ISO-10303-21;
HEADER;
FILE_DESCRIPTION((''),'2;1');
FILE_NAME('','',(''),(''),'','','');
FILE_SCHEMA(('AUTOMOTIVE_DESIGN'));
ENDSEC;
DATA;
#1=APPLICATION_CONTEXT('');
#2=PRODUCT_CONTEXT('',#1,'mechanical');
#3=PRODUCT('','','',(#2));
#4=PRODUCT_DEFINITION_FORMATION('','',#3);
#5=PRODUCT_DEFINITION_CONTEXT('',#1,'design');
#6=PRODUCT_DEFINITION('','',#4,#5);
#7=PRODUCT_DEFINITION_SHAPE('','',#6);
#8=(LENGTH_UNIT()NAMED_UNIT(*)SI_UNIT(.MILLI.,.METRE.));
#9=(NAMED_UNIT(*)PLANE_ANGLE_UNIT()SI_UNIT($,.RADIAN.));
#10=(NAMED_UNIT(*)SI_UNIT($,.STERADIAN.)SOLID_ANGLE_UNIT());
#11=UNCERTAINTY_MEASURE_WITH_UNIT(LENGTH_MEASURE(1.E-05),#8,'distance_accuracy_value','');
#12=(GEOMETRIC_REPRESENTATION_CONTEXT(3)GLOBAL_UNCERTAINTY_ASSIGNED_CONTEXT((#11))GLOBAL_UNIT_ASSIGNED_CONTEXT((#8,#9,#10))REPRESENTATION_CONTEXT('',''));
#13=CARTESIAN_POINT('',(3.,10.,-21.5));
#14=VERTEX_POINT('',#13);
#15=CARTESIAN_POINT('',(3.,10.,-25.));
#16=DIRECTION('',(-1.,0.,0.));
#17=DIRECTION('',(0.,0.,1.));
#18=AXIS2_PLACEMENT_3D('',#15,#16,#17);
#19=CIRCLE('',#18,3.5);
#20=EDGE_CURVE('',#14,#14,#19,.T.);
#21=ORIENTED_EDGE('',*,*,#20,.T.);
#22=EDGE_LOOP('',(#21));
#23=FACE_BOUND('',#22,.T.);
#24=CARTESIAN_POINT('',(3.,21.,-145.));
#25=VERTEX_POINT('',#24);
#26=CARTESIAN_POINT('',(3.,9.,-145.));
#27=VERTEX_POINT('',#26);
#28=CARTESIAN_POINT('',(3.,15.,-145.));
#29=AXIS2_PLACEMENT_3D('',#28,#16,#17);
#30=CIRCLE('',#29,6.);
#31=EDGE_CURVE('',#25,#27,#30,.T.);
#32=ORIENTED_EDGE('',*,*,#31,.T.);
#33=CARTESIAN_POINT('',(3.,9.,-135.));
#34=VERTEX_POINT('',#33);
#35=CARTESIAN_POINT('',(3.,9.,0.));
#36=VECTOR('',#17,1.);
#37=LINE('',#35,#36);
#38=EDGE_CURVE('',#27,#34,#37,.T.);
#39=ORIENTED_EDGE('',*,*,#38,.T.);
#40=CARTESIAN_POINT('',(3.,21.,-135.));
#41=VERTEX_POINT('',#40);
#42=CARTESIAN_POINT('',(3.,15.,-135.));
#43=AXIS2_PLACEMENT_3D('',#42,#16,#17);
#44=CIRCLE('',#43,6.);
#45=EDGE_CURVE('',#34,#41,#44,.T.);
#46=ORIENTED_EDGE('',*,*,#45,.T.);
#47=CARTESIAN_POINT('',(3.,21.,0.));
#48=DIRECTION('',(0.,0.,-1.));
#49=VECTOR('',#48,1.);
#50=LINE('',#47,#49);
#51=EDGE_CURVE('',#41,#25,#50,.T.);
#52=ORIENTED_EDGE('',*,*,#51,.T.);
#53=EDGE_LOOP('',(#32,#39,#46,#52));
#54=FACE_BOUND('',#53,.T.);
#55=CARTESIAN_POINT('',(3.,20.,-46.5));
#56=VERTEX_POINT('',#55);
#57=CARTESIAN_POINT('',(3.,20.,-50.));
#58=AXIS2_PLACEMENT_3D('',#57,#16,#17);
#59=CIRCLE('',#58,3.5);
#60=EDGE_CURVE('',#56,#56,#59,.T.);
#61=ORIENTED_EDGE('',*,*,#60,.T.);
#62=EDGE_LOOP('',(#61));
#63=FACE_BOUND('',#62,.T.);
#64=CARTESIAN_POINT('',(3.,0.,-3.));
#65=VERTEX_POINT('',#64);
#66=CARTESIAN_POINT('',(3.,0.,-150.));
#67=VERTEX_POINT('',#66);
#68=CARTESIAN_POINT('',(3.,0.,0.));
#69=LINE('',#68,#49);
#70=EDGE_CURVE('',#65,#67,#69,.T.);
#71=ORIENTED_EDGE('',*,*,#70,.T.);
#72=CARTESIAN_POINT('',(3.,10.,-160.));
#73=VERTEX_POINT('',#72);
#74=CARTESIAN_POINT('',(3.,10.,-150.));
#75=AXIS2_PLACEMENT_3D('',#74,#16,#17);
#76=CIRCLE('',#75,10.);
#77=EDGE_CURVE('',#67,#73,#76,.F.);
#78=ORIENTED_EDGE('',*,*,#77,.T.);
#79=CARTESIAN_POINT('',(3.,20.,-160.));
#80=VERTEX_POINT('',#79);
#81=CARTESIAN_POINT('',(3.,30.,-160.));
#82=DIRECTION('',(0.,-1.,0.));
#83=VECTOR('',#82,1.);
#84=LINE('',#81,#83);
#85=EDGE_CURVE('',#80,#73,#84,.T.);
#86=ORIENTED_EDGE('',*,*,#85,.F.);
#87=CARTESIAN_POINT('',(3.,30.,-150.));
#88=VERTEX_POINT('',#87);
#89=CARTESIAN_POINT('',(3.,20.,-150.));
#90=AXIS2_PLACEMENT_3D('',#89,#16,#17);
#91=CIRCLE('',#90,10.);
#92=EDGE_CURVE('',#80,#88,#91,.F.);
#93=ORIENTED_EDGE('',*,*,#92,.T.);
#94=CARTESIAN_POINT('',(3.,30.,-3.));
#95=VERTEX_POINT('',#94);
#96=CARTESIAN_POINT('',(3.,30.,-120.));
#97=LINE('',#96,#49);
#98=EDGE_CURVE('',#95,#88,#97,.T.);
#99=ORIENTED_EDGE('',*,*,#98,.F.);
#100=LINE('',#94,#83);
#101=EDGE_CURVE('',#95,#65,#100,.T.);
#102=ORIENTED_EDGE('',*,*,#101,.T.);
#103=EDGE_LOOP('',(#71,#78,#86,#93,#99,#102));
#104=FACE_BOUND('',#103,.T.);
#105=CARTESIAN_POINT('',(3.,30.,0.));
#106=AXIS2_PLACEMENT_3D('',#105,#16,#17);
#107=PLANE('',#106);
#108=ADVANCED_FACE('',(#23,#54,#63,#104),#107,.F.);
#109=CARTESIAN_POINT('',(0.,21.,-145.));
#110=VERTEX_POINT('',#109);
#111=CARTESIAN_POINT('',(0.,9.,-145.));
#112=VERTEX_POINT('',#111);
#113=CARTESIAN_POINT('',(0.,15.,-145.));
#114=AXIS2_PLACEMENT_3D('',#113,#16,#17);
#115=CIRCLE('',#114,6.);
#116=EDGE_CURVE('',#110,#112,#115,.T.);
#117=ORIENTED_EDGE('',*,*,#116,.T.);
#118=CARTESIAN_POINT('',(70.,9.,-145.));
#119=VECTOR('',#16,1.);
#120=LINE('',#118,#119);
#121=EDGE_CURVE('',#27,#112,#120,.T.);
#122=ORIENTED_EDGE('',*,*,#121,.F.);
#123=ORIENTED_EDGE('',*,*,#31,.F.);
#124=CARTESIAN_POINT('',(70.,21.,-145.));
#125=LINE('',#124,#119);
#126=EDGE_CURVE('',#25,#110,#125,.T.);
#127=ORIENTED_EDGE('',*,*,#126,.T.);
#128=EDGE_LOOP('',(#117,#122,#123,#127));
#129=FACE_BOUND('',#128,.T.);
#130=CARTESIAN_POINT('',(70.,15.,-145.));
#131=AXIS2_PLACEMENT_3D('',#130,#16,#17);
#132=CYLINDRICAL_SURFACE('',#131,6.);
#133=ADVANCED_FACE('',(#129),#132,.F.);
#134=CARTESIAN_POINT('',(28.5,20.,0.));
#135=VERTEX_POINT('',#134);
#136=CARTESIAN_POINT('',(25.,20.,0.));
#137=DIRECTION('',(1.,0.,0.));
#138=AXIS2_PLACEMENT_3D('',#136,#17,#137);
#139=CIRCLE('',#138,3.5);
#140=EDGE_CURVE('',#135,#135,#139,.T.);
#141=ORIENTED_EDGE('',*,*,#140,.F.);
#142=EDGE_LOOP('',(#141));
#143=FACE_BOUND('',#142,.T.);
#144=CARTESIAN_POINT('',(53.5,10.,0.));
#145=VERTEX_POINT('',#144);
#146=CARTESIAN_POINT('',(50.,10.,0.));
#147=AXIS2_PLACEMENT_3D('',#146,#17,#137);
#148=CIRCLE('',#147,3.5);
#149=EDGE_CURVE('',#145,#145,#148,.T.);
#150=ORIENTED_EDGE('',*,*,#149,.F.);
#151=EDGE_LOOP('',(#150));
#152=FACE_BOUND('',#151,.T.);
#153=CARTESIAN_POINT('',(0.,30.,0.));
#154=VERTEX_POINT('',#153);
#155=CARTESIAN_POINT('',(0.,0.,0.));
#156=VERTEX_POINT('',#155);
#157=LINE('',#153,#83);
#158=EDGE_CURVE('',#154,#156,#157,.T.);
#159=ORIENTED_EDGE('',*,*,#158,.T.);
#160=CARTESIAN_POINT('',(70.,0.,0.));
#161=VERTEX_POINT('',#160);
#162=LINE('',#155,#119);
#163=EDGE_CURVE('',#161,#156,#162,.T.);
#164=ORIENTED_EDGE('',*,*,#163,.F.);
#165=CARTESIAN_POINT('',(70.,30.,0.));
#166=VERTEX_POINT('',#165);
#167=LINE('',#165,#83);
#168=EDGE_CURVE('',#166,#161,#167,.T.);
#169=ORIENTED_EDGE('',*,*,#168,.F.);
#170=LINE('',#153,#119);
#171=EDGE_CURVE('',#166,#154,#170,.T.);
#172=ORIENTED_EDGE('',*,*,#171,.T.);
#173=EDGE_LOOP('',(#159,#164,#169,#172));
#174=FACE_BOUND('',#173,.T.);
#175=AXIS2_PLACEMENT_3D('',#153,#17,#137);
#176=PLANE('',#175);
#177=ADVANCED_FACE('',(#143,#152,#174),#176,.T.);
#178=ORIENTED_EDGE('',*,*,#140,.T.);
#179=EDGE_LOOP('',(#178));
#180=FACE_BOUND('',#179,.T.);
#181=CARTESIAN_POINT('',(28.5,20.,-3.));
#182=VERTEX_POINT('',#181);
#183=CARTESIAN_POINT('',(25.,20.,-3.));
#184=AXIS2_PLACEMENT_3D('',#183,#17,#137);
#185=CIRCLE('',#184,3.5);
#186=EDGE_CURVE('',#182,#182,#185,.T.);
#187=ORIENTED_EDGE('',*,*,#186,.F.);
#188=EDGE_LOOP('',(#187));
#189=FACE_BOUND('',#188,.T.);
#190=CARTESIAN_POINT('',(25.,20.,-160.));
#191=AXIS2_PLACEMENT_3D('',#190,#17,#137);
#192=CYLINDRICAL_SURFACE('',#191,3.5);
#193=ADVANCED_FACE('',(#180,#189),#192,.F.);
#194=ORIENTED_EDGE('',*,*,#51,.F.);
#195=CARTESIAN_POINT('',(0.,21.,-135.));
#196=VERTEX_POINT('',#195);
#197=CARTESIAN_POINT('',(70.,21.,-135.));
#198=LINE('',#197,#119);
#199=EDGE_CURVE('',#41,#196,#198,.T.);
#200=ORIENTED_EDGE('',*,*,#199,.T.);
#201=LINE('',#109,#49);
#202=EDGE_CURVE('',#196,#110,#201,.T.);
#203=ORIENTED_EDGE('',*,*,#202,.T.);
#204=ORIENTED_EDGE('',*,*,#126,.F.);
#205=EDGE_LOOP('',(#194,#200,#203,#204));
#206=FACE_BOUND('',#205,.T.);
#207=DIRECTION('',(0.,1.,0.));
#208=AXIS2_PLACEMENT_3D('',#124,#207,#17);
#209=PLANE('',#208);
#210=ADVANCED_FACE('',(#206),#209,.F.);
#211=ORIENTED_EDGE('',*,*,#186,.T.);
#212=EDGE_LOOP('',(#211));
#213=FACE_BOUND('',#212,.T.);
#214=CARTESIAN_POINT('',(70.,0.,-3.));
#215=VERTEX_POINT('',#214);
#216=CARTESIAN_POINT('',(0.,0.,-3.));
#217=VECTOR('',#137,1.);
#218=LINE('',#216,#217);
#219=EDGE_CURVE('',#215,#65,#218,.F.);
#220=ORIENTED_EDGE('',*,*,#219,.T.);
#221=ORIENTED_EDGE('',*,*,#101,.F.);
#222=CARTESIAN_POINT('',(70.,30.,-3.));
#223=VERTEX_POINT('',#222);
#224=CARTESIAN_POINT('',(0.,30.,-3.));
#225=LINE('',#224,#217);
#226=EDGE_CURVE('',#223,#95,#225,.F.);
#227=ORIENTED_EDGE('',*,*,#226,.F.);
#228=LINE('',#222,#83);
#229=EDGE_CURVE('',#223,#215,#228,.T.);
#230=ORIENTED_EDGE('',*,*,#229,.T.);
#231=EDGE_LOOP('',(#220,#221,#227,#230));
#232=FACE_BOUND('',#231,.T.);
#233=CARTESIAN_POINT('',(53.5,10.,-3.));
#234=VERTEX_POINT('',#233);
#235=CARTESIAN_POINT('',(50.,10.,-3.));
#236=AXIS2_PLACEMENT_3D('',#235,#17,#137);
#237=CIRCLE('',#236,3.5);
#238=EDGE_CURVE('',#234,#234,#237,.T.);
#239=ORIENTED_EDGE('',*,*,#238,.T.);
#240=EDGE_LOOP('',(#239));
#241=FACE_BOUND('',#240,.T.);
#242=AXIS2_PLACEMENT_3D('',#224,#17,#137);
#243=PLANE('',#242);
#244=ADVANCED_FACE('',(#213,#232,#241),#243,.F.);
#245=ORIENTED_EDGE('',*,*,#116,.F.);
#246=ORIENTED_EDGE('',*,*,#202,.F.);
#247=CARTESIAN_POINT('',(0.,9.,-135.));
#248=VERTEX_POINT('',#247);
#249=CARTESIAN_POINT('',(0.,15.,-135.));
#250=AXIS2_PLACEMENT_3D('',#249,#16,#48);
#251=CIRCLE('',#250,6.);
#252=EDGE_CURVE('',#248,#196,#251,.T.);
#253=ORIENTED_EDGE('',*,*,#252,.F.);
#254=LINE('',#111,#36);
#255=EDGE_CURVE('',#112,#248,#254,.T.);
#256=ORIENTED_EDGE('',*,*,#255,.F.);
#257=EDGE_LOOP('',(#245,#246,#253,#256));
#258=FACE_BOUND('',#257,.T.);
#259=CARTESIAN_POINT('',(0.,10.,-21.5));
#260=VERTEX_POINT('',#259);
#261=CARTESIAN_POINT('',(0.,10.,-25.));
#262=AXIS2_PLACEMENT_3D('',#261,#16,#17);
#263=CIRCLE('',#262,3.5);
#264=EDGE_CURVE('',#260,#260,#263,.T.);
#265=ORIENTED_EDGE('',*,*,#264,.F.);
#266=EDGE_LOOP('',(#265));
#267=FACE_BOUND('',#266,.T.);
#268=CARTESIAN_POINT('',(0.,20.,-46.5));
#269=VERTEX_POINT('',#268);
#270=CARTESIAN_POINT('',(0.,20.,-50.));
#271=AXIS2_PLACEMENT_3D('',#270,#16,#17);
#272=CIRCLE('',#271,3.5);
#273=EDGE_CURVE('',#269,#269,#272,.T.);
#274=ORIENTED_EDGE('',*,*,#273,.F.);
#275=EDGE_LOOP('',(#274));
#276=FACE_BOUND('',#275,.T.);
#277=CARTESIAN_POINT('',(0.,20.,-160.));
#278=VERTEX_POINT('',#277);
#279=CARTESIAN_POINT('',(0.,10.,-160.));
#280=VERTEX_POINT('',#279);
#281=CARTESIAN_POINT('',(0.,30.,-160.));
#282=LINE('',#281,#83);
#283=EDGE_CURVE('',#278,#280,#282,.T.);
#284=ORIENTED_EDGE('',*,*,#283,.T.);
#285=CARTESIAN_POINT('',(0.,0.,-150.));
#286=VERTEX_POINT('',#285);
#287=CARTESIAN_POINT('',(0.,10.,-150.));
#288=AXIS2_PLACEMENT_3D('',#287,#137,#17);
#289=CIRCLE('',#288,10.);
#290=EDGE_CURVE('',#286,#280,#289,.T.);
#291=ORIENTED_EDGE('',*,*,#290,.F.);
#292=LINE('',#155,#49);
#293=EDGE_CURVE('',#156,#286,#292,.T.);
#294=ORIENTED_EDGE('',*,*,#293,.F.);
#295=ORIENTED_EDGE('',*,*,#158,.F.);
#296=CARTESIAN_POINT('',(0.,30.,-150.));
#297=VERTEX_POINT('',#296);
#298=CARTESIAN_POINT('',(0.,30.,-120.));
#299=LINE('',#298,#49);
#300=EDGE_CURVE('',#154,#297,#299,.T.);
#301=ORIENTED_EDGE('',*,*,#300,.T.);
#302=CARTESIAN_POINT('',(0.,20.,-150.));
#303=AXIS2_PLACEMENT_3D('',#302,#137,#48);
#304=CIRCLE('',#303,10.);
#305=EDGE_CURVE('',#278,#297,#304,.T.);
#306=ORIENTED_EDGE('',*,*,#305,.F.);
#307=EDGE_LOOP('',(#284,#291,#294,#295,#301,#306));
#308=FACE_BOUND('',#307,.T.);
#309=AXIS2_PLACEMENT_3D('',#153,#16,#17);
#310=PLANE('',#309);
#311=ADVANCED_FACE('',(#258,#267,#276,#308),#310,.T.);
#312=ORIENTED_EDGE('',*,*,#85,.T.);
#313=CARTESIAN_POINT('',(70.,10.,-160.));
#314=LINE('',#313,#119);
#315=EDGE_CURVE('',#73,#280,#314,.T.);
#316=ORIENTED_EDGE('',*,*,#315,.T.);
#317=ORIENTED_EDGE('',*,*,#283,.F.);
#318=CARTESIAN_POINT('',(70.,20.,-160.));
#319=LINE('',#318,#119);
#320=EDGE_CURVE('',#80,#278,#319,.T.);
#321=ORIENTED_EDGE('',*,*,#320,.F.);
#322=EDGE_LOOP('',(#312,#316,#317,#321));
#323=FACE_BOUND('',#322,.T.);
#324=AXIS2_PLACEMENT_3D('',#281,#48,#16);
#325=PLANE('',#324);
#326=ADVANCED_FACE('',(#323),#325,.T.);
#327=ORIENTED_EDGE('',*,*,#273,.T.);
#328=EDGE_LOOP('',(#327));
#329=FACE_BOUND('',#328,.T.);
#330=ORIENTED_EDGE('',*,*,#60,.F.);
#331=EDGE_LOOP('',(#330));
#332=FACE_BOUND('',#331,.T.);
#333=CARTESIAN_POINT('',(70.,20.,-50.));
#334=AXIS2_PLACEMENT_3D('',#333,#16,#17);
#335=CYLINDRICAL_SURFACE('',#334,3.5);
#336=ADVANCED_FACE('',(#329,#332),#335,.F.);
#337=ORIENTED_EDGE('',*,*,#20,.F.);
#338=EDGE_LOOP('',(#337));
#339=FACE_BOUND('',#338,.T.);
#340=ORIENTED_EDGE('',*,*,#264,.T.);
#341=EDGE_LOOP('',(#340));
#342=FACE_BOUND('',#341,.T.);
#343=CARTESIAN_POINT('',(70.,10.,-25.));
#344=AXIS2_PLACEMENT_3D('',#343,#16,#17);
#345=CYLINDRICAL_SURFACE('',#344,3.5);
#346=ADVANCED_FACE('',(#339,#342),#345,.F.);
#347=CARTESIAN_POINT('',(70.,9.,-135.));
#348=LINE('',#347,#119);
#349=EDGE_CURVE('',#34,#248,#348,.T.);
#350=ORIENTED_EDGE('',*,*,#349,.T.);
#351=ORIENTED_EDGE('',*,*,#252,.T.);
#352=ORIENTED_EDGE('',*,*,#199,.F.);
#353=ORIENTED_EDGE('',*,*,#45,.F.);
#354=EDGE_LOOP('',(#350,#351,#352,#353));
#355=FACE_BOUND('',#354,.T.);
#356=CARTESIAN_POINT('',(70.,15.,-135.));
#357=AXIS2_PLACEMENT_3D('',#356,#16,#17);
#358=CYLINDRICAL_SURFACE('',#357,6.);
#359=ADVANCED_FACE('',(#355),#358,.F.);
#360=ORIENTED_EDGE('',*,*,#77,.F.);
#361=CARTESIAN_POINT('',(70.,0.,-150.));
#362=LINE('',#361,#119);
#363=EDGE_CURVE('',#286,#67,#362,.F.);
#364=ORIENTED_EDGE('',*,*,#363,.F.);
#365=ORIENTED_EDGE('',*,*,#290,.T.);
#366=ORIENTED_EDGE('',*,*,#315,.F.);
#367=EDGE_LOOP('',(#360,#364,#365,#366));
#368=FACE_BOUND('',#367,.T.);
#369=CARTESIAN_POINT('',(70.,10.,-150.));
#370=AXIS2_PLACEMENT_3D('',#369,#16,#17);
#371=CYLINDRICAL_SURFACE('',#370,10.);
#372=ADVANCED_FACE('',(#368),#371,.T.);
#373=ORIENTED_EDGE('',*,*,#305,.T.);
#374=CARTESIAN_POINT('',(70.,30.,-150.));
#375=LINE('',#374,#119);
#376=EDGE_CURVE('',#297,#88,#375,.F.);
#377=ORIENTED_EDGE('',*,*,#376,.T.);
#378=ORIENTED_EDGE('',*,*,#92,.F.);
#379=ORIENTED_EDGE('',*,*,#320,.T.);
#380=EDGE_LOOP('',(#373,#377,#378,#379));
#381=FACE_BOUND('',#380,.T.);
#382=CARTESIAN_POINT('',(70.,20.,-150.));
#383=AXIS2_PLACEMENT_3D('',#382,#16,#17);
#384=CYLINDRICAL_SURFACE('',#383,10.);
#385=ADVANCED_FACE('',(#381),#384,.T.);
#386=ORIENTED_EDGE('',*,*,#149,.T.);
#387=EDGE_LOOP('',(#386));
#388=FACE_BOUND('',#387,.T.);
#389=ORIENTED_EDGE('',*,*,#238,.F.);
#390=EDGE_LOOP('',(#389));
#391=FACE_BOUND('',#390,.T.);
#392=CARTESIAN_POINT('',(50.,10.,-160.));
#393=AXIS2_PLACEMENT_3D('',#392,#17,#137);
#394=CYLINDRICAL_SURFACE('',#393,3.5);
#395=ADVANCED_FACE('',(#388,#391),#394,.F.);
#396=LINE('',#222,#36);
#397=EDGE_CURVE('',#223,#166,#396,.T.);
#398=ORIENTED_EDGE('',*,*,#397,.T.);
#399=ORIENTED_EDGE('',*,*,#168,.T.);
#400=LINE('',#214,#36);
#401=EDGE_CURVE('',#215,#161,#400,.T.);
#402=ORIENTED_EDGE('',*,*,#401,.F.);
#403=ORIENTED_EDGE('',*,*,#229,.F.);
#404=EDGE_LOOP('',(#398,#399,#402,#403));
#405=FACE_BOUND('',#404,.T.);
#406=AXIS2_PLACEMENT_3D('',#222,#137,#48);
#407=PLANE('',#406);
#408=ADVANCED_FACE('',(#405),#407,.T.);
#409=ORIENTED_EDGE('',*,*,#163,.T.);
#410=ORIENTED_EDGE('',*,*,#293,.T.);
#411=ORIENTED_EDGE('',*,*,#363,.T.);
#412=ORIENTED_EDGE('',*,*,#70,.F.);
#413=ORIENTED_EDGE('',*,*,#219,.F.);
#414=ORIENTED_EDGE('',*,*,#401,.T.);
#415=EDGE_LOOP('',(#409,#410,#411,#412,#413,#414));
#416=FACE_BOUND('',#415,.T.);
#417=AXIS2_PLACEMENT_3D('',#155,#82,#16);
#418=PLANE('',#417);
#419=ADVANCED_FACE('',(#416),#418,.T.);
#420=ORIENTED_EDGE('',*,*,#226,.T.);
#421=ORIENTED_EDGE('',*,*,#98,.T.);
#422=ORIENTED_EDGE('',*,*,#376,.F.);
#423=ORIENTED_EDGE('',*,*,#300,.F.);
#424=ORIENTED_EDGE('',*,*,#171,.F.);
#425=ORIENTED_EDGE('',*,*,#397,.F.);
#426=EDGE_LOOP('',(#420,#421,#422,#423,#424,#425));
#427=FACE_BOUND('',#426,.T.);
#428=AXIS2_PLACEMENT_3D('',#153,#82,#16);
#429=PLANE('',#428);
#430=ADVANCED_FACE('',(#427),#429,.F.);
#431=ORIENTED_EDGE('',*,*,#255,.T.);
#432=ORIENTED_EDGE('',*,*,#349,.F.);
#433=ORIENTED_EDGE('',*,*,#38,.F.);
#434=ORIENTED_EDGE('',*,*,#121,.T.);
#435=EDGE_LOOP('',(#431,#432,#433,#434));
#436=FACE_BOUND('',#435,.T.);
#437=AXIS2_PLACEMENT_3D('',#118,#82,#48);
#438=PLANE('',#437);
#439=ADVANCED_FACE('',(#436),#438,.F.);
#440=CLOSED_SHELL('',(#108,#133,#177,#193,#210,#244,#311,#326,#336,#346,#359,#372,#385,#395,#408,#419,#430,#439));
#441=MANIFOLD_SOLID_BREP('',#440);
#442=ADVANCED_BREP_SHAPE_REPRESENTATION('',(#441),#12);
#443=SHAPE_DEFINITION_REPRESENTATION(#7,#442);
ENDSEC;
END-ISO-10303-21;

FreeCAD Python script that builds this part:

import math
import FreeCAD as App
import Part
import Sketcher

V = App.Vector

doc = App.newDocument("Part")
body = doc.addObject("PartDesign::Body", "Body")

# Sketch on XZ plane
sketch1 = doc.addObject("Sketcher::SketchObject", "Sketch")
body.addObject(sketch1)
sketch1.AttachmentSupport = (doc.XZ_Plane, [""])
sketch1.MapMode = "FlatFace"
sketch1.addGeometry([
    Part.LineSegment(V(0, -160, 0), V(0, 0, 0)),  # 0
    Part.LineSegment(V(0, 0, 0), V(70, 0, 0)),  # 1
    Part.LineSegment(V(70, 0, 0), V(70, -3, 0)),  # 2
    Part.LineSegment(V(70, -3, 0), V(3, -3, 0)),  # 3
    Part.LineSegment(V(3, -3, 0), V(3, -160, 0)),  # 4
    Part.LineSegment(V(3, -160, 0), V(0, -160, 0)),  # 5
], False)
sketch1.addConstraint([
    Sketcher.Constraint("Coincident", 0, 2, 1, 1),
    Sketcher.Constraint("Coincident", 1, 2, 2, 1),
    Sketcher.Constraint("Coincident", 2, 2, 3, 1),
    Sketcher.Constraint("Coincident", 3, 2, 4, 1),
    Sketcher.Constraint("Coincident", 4, 2, 5, 1),
    Sketcher.Constraint("Coincident", 5, 2, 0, 1),
    Sketcher.Constraint("Vertical", 0),
    Sketcher.Constraint("Horizontal", 1),
    Sketcher.Constraint("Vertical", 2),
    Sketcher.Constraint("Horizontal", 3),
    Sketcher.Constraint("Vertical", 4),
    Sketcher.Constraint("Horizontal", 5),
    Sketcher.Constraint("Coincident", 0, 2, -1, 1),
    Sketcher.Constraint("Equal", 5, 2),
    Sketcher.Constraint("DistanceX", 1, 1, 1, 2, 70.0),
    Sketcher.Constraint("DistanceX", 3, 2, 3, 1, 67.0),
    Sketcher.Constraint("DistanceY", 0, 1, 0, 2, 160.0),
])
pad1 = doc.addObject("PartDesign::Pad", "Pad")
body.addObject(pad1)
pad1.Profile = sketch1
pad1.Length = 30
pad1.Reversed = True

# Sketch on YZ plane
sketch2 = doc.addObject("Sketcher::SketchObject", "Sketch001")
body.addObject(sketch2)
sketch2.AttachmentSupport = (doc.YZ_Plane, [""])
sketch2.MapMode = "FlatFace"
sketch2.addGeometry([
    Part.Circle(V(20, -50, 0), V(0, 0, 1), 3.5),
    Part.Circle(V(10, -25, 0), V(0, 0, 1), 3.5),
], False)
sketch2.addConstraint([
    Sketcher.Constraint("Equal", 0, 1),
    Sketcher.Constraint("Diameter", 0, 7.0),
    Sketcher.Constraint("DistanceX", -1, 1, 0, 3, 20.0),
    Sketcher.Constraint("DistanceY", 0, 3, -1, 1, 50.0),
    Sketcher.Constraint("DistanceX", -1, 1, 1, 3, 10.0),
    Sketcher.Constraint("DistanceY", 1, 3, -1, 1, 25.0),
])
pocket1 = doc.addObject("PartDesign::Pocket", "Pocket")
body.addObject(pocket1)
pocket1.Profile = sketch2
pocket1.Type = "ThroughAll"
pocket1.Reversed = True

# Sketch on XY plane
sketch3 = doc.addObject("Sketcher::SketchObject", "Sketch002")
body.addObject(sketch3)
sketch3.AttachmentSupport = (doc.XY_Plane, [""])
sketch3.MapMode = "FlatFace"
sketch3.addGeometry([
    Part.Circle(V(25, 20, 0), V(0, 0, 1), 3.5),
    Part.Circle(V(50, 10, 0), V(0, 0, 1), 3.5),
], False)
sketch3.addConstraint([
    Sketcher.Constraint("Equal", 0, 1),
    Sketcher.Constraint("Diameter", 0, 7.0),
    Sketcher.Constraint("DistanceX", -1, 1, 0, 3, 25.0),
    Sketcher.Constraint("DistanceY", -1, 1, 0, 3, 20.0),
    Sketcher.Constraint("DistanceX", -1, 1, 1, 3, 50.0),
    Sketcher.Constraint("DistanceY", -1, 1, 1, 3, 10.0),
])
pocket2 = doc.addObject("PartDesign::Pocket", "Pocket001")
body.addObject(pocket2)
pocket2.Profile = sketch3
pocket2.Type = "ThroughAll"

# Sketch on YZ plane
sketch4 = doc.addObject("Sketcher::SketchObject", "Sketch003")
body.addObject(sketch4)
sketch4.AttachmentSupport = (doc.YZ_Plane, [""])
sketch4.MapMode = "FlatFace"
sketch4.addGeometry([
    Part.LineSegment(V(21, -135, 0), V(21, -145, 0)),  # 0
    Part.ArcOfCircle(Part.Circle(V(15, -145, 0), V(0, 0, 1), 6), math.radians(180), math.radians(360)),  # 1
    Part.LineSegment(V(9, -145, 0), V(9, -135, 0)),  # 2
    Part.ArcOfCircle(Part.Circle(V(15, -135, 0), V(0, 0, 1), 6), math.radians(0), math.radians(180)),  # 3
    Part.LineSegment(V(30, -160, 0), V(20, -160, 0)),  # 4
    Part.ArcOfCircle(Part.Circle(V(20, -150, 0), V(0, 0, 1), 10), math.radians(-90), math.radians(0)),  # 5
    Part.LineSegment(V(30, -150, 0), V(30, -160, 0)),  # 6
    Part.LineSegment(V(10, -160, 0), V(0, -160, 0)),  # 7
    Part.LineSegment(V(0, -160, 0), V(0, -150, 0)),  # 8
    Part.ArcOfCircle(Part.Circle(V(10, -150, 0), V(0, 0, 1), 10), math.radians(180), math.radians(270)),  # 9
], False)
sketch4.addConstraint([
    Sketcher.Constraint("Tangent", 0, 2, 1, 2),
    Sketcher.Constraint("Tangent", 1, 1, 2, 1),
    Sketcher.Constraint("Tangent", 2, 2, 3, 2),
    Sketcher.Constraint("Tangent", 3, 1, 0, 1),
    Sketcher.Constraint("Tangent", 4, 2, 5, 1),
    Sketcher.Constraint("Tangent", 5, 2, 6, 1),
    Sketcher.Constraint("Coincident", 6, 2, 4, 1),
    Sketcher.Constraint("Coincident", 7, 2, 8, 1),
    Sketcher.Constraint("Tangent", 8, 2, 9, 1),
    Sketcher.Constraint("Tangent", 9, 2, 7, 1),
    Sketcher.Constraint("Vertical", 0),
    Sketcher.Constraint("Vertical", 2),
    Sketcher.Constraint("Horizontal", 4),
    Sketcher.Constraint("Vertical", 6),
    Sketcher.Constraint("Horizontal", 7),
    Sketcher.Constraint("Vertical", 8),
    Sketcher.Constraint("Equal", 5, 9),
    Sketcher.Constraint("PointOnObject", 7, 2, -2),
    Sketcher.Constraint("Horizontal", 5, 3, 9, 3),
    Sketcher.Constraint("Equal", 7, 0),
    Sketcher.Constraint("Radius", 1, 6.0),
    Sketcher.Constraint("Radius", 5, 10.0),
    Sketcher.Constraint("DistanceX", -1, 1, 1, 3, 15.0),
    Sketcher.Constraint("DistanceY", 1, 3, -1, 1, 145.0),
    Sketcher.Constraint("DistanceX", -1, 1, 5, 3, 20.0),
    Sketcher.Constraint("DistanceY", 5, 3, -1, 1, 150.0),
])
pocket3 = doc.addObject("PartDesign::Pocket", "Pocket002")
body.addObject(pocket3)
pocket3.Profile = sketch4
pocket3.Type = "ThroughAll"
pocket3.Reversed = True

doc.recompute()
